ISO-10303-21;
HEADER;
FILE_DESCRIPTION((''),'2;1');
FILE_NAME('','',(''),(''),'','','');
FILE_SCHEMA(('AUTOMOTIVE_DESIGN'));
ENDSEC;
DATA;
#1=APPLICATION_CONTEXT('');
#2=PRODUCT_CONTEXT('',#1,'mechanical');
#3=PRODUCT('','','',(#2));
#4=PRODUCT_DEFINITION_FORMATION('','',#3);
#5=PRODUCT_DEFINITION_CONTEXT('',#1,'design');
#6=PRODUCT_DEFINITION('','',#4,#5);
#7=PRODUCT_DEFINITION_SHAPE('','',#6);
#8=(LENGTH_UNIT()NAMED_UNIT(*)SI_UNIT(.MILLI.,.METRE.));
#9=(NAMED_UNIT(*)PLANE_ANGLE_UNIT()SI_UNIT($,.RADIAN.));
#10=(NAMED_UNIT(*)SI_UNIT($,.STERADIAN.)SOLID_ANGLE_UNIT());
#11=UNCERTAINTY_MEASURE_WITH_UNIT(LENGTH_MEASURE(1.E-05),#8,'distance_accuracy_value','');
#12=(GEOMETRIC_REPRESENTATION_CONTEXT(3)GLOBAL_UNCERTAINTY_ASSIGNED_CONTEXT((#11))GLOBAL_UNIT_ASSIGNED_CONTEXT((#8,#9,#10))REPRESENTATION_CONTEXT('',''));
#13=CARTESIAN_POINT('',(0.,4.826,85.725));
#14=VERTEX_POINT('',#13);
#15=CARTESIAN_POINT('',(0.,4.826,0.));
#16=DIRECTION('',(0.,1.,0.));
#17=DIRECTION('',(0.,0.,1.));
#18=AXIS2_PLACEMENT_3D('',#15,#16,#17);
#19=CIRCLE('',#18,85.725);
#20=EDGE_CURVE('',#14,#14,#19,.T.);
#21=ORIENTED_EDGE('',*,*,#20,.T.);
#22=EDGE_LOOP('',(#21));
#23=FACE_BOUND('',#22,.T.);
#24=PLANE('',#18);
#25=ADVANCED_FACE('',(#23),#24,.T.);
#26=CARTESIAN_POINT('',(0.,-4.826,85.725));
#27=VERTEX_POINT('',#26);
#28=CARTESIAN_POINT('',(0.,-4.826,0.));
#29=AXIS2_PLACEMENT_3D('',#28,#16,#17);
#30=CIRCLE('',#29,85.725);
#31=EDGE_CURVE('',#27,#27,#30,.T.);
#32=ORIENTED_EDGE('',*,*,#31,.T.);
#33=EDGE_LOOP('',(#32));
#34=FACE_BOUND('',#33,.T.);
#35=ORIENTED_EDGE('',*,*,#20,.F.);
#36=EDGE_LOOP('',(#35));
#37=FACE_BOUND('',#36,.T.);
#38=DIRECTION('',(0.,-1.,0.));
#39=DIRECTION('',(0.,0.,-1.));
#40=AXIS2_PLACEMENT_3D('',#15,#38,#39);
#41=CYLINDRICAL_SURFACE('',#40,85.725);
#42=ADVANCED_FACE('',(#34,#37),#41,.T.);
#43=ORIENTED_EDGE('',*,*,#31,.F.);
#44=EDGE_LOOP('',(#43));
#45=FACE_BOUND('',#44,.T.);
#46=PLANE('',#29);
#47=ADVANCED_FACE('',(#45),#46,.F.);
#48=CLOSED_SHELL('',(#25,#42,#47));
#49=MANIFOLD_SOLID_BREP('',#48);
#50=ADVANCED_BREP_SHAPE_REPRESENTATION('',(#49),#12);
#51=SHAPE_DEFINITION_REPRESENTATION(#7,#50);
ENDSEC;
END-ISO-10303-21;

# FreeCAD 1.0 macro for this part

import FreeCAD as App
import Part
import Sketcher

V = App.Vector
Q = App.Units.Quantity

doc = App.newDocument("Part")
body = doc.addObject("PartDesign::Body", "Body")

# Sketch on XZ plane
sketch1 = body.newObject("Sketcher::SketchObject", "Sketch")
sketch1.AttachmentSupport = (doc.getObject("XZ_Plane"), [""])
sketch1.MapMode = "FlatFace"
sketch1.addGeometry(Part.Circle(V(0, 0, 0), V(0, 0, 1), 86), False)
sketch1.addConstraint(Sketcher.Constraint("Coincident", 0, 3, -1, 1))
sketch1.addConstraint(Sketcher.Constraint("Diameter", 0, Q("6.75 in")))
pad1 = body.newObject("PartDesign::Pad", "Pad")
pad1.Profile = sketch1
pad1.Length = Q("0.38 in")
pad1.Midplane = True

doc.recompute()
